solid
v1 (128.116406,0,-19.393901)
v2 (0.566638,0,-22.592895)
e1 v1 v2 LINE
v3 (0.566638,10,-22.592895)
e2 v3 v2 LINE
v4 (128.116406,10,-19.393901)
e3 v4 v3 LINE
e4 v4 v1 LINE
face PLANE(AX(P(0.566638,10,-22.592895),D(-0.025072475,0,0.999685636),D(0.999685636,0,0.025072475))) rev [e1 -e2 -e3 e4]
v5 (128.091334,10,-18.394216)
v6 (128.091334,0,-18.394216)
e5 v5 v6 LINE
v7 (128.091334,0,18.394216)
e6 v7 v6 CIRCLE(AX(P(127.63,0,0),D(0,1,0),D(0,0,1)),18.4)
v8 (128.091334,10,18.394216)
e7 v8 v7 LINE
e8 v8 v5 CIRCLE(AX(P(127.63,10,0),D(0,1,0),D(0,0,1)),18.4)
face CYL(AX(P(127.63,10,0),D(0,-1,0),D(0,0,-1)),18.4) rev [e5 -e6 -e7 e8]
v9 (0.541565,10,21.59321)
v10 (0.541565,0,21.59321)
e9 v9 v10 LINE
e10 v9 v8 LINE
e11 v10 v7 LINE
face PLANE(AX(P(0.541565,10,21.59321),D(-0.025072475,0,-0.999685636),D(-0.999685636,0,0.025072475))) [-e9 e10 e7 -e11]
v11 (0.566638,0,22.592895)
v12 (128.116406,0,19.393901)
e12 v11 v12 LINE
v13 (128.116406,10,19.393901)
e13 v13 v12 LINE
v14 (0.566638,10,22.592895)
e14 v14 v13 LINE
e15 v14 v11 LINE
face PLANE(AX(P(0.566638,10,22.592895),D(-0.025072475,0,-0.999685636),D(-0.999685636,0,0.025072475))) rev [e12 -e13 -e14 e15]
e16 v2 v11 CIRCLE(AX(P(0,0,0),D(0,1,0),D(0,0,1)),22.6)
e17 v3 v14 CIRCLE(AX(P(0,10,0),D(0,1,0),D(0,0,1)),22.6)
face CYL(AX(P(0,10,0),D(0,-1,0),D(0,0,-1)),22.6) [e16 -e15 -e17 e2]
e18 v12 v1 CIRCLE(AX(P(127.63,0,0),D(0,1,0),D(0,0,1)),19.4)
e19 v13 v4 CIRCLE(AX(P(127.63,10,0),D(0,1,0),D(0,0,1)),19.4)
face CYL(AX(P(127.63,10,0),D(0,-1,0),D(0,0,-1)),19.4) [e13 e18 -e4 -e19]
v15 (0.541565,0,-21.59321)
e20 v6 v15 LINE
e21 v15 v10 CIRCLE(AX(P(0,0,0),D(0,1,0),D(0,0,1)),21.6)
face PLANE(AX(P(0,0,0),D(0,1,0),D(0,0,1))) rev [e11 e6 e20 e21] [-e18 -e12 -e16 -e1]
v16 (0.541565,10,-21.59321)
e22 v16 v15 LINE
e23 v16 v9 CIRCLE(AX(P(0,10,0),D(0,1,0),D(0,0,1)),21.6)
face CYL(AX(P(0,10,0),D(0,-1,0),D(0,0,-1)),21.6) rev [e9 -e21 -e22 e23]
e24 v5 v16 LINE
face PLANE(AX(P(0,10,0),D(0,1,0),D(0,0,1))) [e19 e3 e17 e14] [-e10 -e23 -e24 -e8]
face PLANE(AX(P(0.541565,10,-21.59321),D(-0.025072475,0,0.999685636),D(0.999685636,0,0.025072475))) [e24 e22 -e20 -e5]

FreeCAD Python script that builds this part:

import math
import FreeCAD as App
import Part
import Sketcher
Q = App.Units.Quantity

doc = App.newDocument("Part")
params = doc.addObject("Spreadsheet::Sheet", "Params")
for row, (alias, value) in enumerate([
    ("sketch1_radius", "22.6 mm"),
    ("sketch1_radius2", "19.4 mm"),
    ("sketch1_radius3", "18.4 mm"),
    ("pad1_length", "10 mm"),
], start=1):
    params.set(f"A{row}", alias)
    params.set(f"B{row}", "=" + value)
    params.setAlias(f"B{row}", alias)

body = doc.addObject("PartDesign::Body", "Body")

# Sketch on XZ plane
sketch1 = doc.addObject("Sketcher::SketchObject", "Sketch")
body.addObject(sketch1)
sketch1.AttachmentSupport = (doc.XZ_Plane, [""])
sketch1.MapMode = "FlatFace"
sketch1.addGeometry(Part.LineSegment(App.Vector(128, -19, 0), App.Vector(1, -23, 0)), False)
sketch1.addGeometry(Part.ArcOfCircle(Part.Circle(App.Vector(0, 0, 0), App.Vector(0, 0, 1), 23), math.radians(89), math.radians(271)), False)
sketch1.addGeometry(Part.LineSegment(App.Vector(1, 23, 0), App.Vector(128, 19, 0)), False)
sketch1.addGeometry(Part.ArcOfCircle(Part.Circle(App.Vector(128, 0, 0), App.Vector(0, 0, 1), 19), math.radians(-89), math.radians(89)), False)
sketch1.addGeometry(Part.LineSegment(App.Vector(1, -22, 0), App.Vector(128, -18, 0)), False)
sketch1.addGeometry(Part.ArcOfCircle(Part.Circle(App.Vector(128, 0, 0), App.Vector(0, 0, 1), 18), math.radians(-89), math.radians(89)), False)
sketch1.addGeometry(Part.LineSegment(App.Vector(128, 18, 0), App.Vector(1, 22, 0)), False)
sketch1.addGeometry(Part.ArcOfCircle(Part.Circle(App.Vector(0, 0, 0), App.Vector(0, 0, 1), 22), math.radians(89), math.radians(271)), False)
sketch1.addConstraint(Sketcher.Constraint("Tangent", 0, 2, 1, 2))
sketch1.addConstraint(Sketcher.Constraint("Tangent", 1, 1, 2, 1))
sketch1.addConstraint(Sketcher.Constraint("Tangent", 2, 2, 3, 2))
sketch1.addConstraint(Sketcher.Constraint("Tangent", 3, 1, 0, 1))
sketch1.addConstraint(Sketcher.Constraint("Tangent", 4, 2, 5, 1))
sketch1.addConstraint(Sketcher.Constraint("Tangent", 5, 2, 6, 1))
sketch1.addConstraint(Sketcher.Constraint("Tangent", 6, 2, 7, 1))
sketch1.addConstraint(Sketcher.Constraint("Tangent", 7, 2, 4, 1))
sketch1.addConstraint(Sketcher.Constraint("Coincident", 1, 3, -1, 1))
sketch1.addConstraint(Sketcher.Constraint("Coincident", 7, 3, -1, 1))
sketch1.addConstraint(Sketcher.Constraint("Coincident", 5, 3, 3, 3))
sketch1.addConstraint(Sketcher.Constraint("PointOnObject", 3, 3, -1))
sketch1.addConstraint(Sketcher.Constraint("Parallel", 0, 4))
sketch1.addConstraint(Sketcher.Constraint("Radius", 1, Q("22.6 mm")))
sketch1.addConstraint(Sketcher.Constraint("Radius", 3, Q("19.4 mm")))
sketch1.addConstraint(Sketcher.Constraint("Radius", 5, Q("18.4 mm")))
sketch1.addConstraint(Sketcher.Constraint("DistanceX", -1, 1, 3, 3, Q("127.63 mm")))
sketch1.setExpression("Constraints[13]", "Params.sketch1_radius")
sketch1.setExpression("Constraints[14]", "Params.sketch1_radius2")
sketch1.setExpression("Constraints[15]", "Params.sketch1_radius3")
pad1 = doc.addObject("PartDesign::Pad", "Pad")
body.addObject(pad1)
pad1.Profile = sketch1
pad1.setExpression("Length", "Params.pad1_length")
pad1.Reversed = True

doc.recompute()
